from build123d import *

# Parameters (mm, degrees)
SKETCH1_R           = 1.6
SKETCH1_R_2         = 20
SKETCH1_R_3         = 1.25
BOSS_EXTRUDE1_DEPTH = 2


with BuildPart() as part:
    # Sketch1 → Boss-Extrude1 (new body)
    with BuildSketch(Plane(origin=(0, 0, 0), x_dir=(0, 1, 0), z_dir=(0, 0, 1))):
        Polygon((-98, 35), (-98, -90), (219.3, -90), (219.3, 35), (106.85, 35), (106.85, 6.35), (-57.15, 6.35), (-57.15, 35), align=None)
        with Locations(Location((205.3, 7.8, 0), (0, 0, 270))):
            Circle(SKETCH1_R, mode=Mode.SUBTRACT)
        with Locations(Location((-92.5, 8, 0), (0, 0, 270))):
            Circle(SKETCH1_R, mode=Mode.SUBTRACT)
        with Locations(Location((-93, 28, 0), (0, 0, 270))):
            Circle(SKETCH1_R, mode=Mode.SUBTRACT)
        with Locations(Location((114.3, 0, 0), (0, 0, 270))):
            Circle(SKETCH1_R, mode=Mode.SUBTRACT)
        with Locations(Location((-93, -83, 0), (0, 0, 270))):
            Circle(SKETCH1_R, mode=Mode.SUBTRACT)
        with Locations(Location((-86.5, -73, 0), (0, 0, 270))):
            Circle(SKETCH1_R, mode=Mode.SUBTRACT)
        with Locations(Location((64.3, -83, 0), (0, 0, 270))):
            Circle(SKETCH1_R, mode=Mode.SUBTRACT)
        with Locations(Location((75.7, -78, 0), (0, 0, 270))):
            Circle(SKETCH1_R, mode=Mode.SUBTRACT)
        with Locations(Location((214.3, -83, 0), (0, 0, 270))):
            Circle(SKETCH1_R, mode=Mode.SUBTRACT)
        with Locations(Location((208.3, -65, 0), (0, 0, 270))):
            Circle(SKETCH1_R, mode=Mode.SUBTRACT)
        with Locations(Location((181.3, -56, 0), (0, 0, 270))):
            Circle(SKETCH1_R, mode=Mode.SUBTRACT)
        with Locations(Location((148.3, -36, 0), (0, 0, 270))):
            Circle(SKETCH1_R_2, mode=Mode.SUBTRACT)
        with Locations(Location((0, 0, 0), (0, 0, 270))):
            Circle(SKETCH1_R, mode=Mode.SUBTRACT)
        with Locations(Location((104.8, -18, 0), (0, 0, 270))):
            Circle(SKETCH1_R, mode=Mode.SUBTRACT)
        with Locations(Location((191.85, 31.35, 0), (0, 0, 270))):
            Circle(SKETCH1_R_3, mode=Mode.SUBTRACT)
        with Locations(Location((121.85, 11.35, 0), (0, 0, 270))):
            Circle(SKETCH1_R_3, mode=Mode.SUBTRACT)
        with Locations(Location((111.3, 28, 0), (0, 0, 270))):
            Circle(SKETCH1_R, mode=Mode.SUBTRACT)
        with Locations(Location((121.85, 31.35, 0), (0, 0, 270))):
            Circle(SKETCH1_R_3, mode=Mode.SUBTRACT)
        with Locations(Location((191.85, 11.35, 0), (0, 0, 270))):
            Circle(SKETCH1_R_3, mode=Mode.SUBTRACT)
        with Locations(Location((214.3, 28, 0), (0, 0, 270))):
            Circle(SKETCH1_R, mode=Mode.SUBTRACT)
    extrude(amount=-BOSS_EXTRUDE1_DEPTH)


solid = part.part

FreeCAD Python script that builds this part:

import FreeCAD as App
import Part
import Sketcher

V = App.Vector
Q = App.Units.Quantity


def add_polygon(sketch, points):
    """Adds a closed chain of lines whose ends are joined by coincident constraints."""
    first, n = sketch.GeometryCount, len(points)
    for a, b in zip(points, points[1:] + points[:1]):
        sketch.addGeometry(Part.LineSegment(App.Vector(*a, 0), App.Vector(*b, 0)), False)
    for i in range(n):
        sketch.addConstraint(Sketcher.Constraint("Coincident", first + i, 2, first + (i + 1) % n, 1))

doc = App.newDocument("Part")
params = doc.addObject("Spreadsheet::Sheet", "Params")
for row, (alias, value) in enumerate([
    ("sketch1_diameter", "40 mm"),
    ("sketch1_diameter2", "3.2 mm"),
    ("sketch1_diameter3", "2.5 mm"),
    ("sketch1_width", "125 mm"),
    ("sketch1_height", "164 mm"),
    ("pad1_length", "2 mm"),
], start=1):
    params.set(f"A{row}", alias)
    params.set(f"B{row}", "=" + value)
    params.setAlias(f"B{row}", alias)

body = doc.addObject("PartDesign::Body", "Body")

# Sketch on XY plane
sketch1 = body.newObject("Sketcher::SketchObject", "Sketch")
sketch1.AttachmentSupport = (doc.getObject("XY_Plane"), [""])
sketch1.MapMode = "FlatFace"
add_polygon(sketch1, [(-35, -98), (90, -98), (90, 219.3), (-35, 219.3), (-35, 106.8), (-6.3, 106.8), (-6.3, -57.1), (-35, -57.1)])  # lines 0-7
sketch1.addGeometry(Part.Circle(V(83, -93, 0), V(0, 0, 1), 1.6), False)  # 8
sketch1.addGeometry(Part.Circle(V(73, -86.5, 0), V(0, 0, 1), 1.6), False)  # 9
sketch1.addGeometry(Part.Circle(V(83, 64.3, 0), V(0, 0, 1), 1.6), False)  # 10
sketch1.addGeometry(Part.Circle(V(78, 75.7, 0), V(0, 0, 1), 1.6), False)  # 11
sketch1.addGeometry(Part.Circle(V(83, 214.3, 0), V(0, 0, 1), 1.6), False)  # 12
sketch1.addGeometry(Part.Circle(V(65, 208.3, 0), V(0, 0, 1), 1.6), False)  # 13
sketch1.addGeometry(Part.Circle(V(56, 181.3, 0), V(0, 0, 1), 1.6), False)  # 14
sketch1.addGeometry(Part.Circle(V(36, 148.3, 0), V(0, 0, 1), 20), False)  # 15
sketch1.addGeometry(Part.Circle(V(0, 0, 0), V(0, 0, 1), 1.6), False)  # 16
sketch1.addGeometry(Part.Circle(V(-8, -92.5, 0), V(0, 0, 1), 1.6), False)  # 17
sketch1.addGeometry(Part.Circle(V(-28, -93, 0), V(0, 0, 1), 1.6), False)  # 18
sketch1.addGeometry(Part.Circle(V(18, 104.8, 0), V(0, 0, 1), 1.6), False)  # 19
sketch1.addGeometry(Part.Circle(V(0, 114.3, 0), V(0, 0, 1), 1.6), False)  # 20
sketch1.addGeometry(Part.Circle(V(-11.3, 121.8, 0), V(0, 0, 1), 1.2), False)  # 21
sketch1.addGeometry(Part.Circle(V(-28, 111.3, 0), V(0, 0, 1), 1.6), False)  # 22
sketch1.addGeometry(Part.Circle(V(-31.4, 121.8, 0), V(0, 0, 1), 1.2), False)  # 23
sketch1.addGeometry(Part.Circle(V(-7.8, 205.3, 0), V(0, 0, 1), 1.6), False)  # 24
sketch1.addGeometry(Part.Circle(V(-11.3, 191.8, 0), V(0, 0, 1), 1.2), False)  # 25
sketch1.addGeometry(Part.Circle(V(-31.4, 191.8, 0), V(0, 0, 1), 1.2), False)  # 26
sketch1.addGeometry(Part.Circle(V(-28, 214.3, 0), V(0, 0, 1), 1.6), False)  # 27
sketch1.addConstraint([
    Sketcher.Constraint("Horizontal", 0),
    Sketcher.Constraint("Vertical", 1),
    Sketcher.Constraint("Horizontal", 2),
    Sketcher.Constraint("Vertical", 3),
    Sketcher.Constraint("Horizontal", 4),
    Sketcher.Constraint("Vertical", 5),
    Sketcher.Constraint("Horizontal", 6),
    Sketcher.Constraint("Vertical", 7),
    Sketcher.Constraint("Coincident", 16, 3, -1, 1),
    Sketcher.Constraint("Equal", 8, 9),
    Sketcher.Constraint("Equal", 9, 10),
    Sketcher.Constraint("Equal", 10, 11),
    Sketcher.Constraint("Equal", 11, 12),
    Sketcher.Constraint("Equal", 12, 13),
    Sketcher.Constraint("Equal", 13, 14),
    Sketcher.Constraint("Equal", 14, 16),
    Sketcher.Constraint("Equal", 16, 17),
    Sketcher.Constraint("Equal", 17, 18),
    Sketcher.Constraint("Equal", 18, 19),
    Sketcher.Constraint("Equal", 19, 20),
    Sketcher.Constraint("Equal", 20, 22),
    Sketcher.Constraint("Equal", 21, 23),
    Sketcher.Constraint("Equal", 22, 24),
    Sketcher.Constraint("Equal", 23, 25),
    Sketcher.Constraint("Equal", 25, 26),
    Sketcher.Constraint("Equal", 24, 27),
    Sketcher.Constraint("PointOnObject", 20, 3, -2),
    Sketcher.Constraint("Horizontal", 8, 3, 18, 3),
    Sketcher.Constraint("Horizontal", 21, 3, 23, 3),
    Sketcher.Constraint("Horizontal", 25, 3, 26, 3),
    Sketcher.Constraint("Horizontal", 12, 3, 27, 3),
    Sketcher.Constraint("Vertical", 8, 3, 10, 3),
    Sketcher.Constraint("Vertical", 10, 3, 12, 3),
    Sketcher.Constraint("Vertical", 18, 3, 22, 3),
    Sketcher.Constraint("Vertical", 21, 3, 25, 3),
    Sketcher.Constraint("Vertical", 23, 3, 26, 3),
    Sketcher.Constraint("Vertical", 22, 3, 27, 3),
    Sketcher.Constraint("Vertical", 3, 2, 6, 2),
    Sketcher.Constraint("Diameter", 15, Q("40 mm")),
    Sketcher.Constraint("Diameter", 8, Q("3.2 mm")),
    Sketcher.Constraint("Diameter", 21, Q("2.5 mm")),
    Sketcher.Constraint("DistanceX", 0, 1, 0, 2, Q("125 mm")),
    Sketcher.Constraint("DistanceY", 5, 2, 5, 1, Q("164 mm")),
    Sketcher.Constraint("DistanceY", 1, 1, 1, 2, Q("317.3 mm")),
    Sketcher.Constraint("DistanceX", -1, 1, 8, 3, Q("83 mm")),
    Sketcher.Constraint("DistanceY", 8, 3, -1, 1, Q("93 mm")),
    Sketcher.Constraint("DistanceX", -1, 1, 9, 3, Q("73 mm")),
    Sketcher.Constraint("DistanceX", -1, 1, 11, 3, Q("78 mm")),
    Sketcher.Constraint("DistanceX", -1, 1, 13, 3, Q("65 mm")),
    Sketcher.Constraint("DistanceX", -1, 1, 14, 3, Q("56 mm")),
    Sketcher.Constraint("DistanceX", -1, 1, 15, 3, Q("36 mm")),
    Sketcher.Constraint("DistanceX", 17, 3, -1, 1, Q("8 mm")),
    Sketcher.Constraint("DistanceX", 18, 3, -1, 1, Q("28 mm")),
    Sketcher.Constraint("DistanceX", -1, 1, 19, 3, Q("18 mm")),
    Sketcher.Constraint("DistanceX", -1, 1, 0, 2, Q("90 mm")),
    Sketcher.Constraint("DistanceY", 0, 2, -1, 1, Q("98 mm")),
    Sketcher.Constraint("DistanceY", 10, 3, 12, 3, Q("150 mm")),
    Sketcher.Constraint("DistanceY", 13, 3, 12, 3, Q("6 mm")),
    Sketcher.Constraint("DistanceY", 14, 3, 13, 3, Q("27 mm")),
    Sketcher.Constraint("DistanceY", 15, 3, 14, 3, Q("33 mm")),
    Sketcher.Constraint("DistanceY", 17, 3, 9, 3, Q("6 mm")),
    Sketcher.Constraint("DistanceY", 20, 3, 15, 3, Q("34 mm")),
    Sketcher.Constraint("DistanceY", 22, 3, 20, 3, Q("3 mm")),
    Sketcher.Constraint("DistanceX", 23, 3, 21, 3, Q("20 mm")),
    Sketcher.Constraint("DistanceY", 14, 3, 24, 3, Q("24 mm")),
    Sketcher.Constraint("DistanceY", 21, 3, 25, 3, Q("70 mm")),
    Sketcher.Constraint("DistanceY", 12, 3, 1, 2, Q("5 mm")),
    Sketcher.Constraint("DistanceY", 3, 2, 23, 3, Q("15 mm")),
    Sketcher.Constraint("DistanceX", 21, 3, 4, 2, Q("5 mm")),
    Sketcher.Constraint("DistanceX", 4, 1, 4, 2, Q("28.65 mm")),
    Sketcher.Constraint("DistanceY", 3, 2, 3, 1, Q("112.45 mm")),
    Sketcher.Constraint("DistanceY", 9, 3, -1, 1, Q("86.5 mm")),
    Sketcher.Constraint("DistanceY", -1, 1, 11, 3, Q("75.7 mm")),
    Sketcher.Constraint("DistanceY", -1, 1, 19, 3, Q("104.8 mm")),
    Sketcher.Constraint("DistanceX", 24, 3, -1, 1, Q("7.8 mm")),
])
sketch1.setExpression("Constraints[46]", "Params.sketch1_diameter")
sketch1.setExpression("Constraints[47]", "Params.sketch1_diameter2")
sketch1.setExpression("Constraints[48]", "Params.sketch1_diameter3")
sketch1.setExpression("Constraints[49]", "Params.sketch1_width")
sketch1.setExpression("Constraints[50]", "Params.sketch1_height")
pad1 = body.newObject("PartDesign::Pad", "Pad")
pad1.Profile = sketch1
pad1.setExpression("Length", "Params.pad1_length")
pad1.Reversed = True

doc.recompute()
